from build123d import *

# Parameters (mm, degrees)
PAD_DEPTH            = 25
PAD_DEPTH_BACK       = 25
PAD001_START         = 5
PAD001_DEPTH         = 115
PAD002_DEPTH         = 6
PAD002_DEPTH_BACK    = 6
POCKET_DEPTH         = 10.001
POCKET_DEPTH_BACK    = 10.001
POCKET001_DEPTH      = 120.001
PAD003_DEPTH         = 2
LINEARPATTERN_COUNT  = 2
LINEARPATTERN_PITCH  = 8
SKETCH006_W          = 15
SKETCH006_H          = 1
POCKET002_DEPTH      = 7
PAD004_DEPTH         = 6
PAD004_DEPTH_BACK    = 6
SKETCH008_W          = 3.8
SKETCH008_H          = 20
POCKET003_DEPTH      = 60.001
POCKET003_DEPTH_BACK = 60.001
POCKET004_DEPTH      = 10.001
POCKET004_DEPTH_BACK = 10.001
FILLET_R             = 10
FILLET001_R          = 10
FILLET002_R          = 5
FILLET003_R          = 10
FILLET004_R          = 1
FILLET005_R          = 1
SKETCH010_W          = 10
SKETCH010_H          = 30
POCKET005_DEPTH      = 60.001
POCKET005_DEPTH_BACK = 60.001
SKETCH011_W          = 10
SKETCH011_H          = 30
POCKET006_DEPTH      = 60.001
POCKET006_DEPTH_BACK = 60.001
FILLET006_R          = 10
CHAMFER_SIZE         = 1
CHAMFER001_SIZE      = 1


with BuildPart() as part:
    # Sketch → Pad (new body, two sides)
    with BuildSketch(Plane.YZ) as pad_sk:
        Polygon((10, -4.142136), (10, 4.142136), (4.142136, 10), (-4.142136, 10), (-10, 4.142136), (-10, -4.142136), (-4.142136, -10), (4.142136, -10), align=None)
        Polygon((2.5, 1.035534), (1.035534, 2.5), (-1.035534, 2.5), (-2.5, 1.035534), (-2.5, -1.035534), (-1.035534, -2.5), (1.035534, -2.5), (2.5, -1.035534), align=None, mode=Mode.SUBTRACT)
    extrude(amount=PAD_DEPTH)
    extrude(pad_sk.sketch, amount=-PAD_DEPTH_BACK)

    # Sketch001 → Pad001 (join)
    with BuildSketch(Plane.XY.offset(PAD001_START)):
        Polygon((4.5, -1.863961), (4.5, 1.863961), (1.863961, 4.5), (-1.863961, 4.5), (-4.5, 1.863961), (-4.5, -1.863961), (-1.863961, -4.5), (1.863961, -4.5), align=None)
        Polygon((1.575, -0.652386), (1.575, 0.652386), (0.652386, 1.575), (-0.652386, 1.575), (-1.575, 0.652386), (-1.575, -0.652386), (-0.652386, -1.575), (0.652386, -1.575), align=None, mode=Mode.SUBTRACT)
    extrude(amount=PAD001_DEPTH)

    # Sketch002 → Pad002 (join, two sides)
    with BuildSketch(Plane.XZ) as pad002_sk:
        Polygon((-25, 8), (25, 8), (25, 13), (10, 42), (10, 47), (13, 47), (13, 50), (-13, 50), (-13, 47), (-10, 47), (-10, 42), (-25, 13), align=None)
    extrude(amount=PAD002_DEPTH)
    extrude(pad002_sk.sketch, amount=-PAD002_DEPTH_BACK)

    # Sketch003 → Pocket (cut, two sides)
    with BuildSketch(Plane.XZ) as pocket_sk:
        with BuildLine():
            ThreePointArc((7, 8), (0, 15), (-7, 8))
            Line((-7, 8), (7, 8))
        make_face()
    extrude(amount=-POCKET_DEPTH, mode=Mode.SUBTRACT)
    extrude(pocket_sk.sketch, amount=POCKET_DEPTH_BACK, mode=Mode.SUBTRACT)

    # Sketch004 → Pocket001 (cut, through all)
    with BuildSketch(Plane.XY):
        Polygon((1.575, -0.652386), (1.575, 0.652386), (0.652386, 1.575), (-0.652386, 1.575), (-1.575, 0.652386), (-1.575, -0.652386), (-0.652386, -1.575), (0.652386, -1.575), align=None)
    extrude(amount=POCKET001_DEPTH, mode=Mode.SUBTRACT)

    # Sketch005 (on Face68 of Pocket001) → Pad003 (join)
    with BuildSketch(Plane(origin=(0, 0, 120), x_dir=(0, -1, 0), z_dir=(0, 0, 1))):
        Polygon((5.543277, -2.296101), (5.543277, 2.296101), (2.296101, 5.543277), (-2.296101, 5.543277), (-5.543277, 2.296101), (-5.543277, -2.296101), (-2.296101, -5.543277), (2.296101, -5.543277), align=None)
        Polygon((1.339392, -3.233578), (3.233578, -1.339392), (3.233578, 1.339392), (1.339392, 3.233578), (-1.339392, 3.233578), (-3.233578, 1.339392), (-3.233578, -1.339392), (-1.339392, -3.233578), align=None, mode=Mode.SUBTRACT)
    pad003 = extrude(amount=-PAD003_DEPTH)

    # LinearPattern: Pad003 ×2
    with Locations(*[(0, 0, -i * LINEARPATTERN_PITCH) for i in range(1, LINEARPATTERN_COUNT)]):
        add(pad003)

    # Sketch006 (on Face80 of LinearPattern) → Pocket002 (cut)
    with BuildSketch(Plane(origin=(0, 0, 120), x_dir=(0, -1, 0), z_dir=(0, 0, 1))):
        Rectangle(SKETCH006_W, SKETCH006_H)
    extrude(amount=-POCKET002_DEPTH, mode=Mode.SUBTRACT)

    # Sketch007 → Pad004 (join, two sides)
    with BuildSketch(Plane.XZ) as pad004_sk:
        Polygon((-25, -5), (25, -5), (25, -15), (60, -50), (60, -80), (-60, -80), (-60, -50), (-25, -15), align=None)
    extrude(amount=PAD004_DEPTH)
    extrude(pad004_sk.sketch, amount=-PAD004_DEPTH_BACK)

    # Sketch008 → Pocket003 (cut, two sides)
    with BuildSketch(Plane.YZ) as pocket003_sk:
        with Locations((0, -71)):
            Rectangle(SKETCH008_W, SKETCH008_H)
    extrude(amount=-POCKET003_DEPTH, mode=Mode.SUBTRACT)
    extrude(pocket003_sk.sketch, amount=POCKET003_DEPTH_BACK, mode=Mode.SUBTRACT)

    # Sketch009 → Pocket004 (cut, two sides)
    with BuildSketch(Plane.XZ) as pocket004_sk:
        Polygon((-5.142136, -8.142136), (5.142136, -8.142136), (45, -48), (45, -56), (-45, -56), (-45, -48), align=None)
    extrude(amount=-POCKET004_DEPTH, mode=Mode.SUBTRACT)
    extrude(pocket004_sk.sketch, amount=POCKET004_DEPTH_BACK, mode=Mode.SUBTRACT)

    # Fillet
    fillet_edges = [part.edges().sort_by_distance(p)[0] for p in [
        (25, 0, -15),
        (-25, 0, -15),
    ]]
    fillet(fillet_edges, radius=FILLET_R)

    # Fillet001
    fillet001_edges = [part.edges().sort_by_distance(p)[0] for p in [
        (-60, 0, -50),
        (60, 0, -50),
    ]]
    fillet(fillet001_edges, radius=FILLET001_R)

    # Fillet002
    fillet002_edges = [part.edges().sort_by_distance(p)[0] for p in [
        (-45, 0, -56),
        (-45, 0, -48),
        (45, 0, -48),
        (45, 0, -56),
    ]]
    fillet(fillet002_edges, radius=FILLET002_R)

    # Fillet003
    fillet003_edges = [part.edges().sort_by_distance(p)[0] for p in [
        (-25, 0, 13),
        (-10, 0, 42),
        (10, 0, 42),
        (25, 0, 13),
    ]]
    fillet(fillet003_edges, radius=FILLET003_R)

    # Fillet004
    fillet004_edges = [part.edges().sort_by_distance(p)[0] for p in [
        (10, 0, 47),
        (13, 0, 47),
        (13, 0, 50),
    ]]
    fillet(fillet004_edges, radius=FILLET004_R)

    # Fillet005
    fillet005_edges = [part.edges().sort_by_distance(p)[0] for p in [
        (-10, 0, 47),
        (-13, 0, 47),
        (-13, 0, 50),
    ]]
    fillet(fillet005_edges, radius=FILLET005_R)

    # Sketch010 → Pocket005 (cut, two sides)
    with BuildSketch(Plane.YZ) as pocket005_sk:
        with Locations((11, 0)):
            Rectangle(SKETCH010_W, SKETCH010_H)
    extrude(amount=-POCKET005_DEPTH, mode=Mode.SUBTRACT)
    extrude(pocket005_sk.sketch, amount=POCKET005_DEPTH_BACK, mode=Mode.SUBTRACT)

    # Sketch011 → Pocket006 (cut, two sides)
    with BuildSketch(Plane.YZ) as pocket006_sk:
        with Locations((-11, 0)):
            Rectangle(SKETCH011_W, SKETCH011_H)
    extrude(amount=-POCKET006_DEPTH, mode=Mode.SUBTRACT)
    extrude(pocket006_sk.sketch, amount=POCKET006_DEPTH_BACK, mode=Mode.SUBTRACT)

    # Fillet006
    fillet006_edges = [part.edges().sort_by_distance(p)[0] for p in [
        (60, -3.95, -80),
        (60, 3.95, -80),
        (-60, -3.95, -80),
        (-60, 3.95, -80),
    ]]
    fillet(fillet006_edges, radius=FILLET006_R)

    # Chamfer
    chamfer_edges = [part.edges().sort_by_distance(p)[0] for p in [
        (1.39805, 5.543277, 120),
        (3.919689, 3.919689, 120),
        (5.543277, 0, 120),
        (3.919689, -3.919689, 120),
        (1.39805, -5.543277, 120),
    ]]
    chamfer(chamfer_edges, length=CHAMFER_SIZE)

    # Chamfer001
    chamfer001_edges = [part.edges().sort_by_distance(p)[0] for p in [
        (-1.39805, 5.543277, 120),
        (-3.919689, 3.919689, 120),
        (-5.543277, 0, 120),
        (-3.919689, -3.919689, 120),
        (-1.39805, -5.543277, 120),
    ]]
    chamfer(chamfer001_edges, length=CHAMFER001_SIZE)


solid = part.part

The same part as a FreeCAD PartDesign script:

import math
import FreeCAD as App
import Part
import Sketcher
from FreeCAD import Vector


def edges_at(feature, points):
    """Names of the edges that pass closest to the given points."""
    edges = feature.Shape.Edges
    near = lambda p: min(range(len(edges)), key=lambda i: edges[i].distToShape(Part.Vertex(*p))[0])
    return sorted({f"Edge{near(p) + 1}" for p in points})


def add_polygon(sketch, points):
    """Adds a closed chain of lines whose ends are joined by coincident constraints."""
    first, n = sketch.GeometryCount, len(points)
    for a, b in zip(points, points[1:] + points[:1]):
        sketch.addGeometry(Part.LineSegment(App.Vector(*a, 0), App.Vector(*b, 0)), False)
    for i in range(n):
        sketch.addConstraint(Sketcher.Constraint("Coincident", first + i, 2, first + (i + 1) % n, 1))

doc = App.newDocument("Part")
body = doc.addObject("PartDesign::Body", "Body")

sketch1 = body.newObject("Sketcher::SketchObject", "Sketch")
sketch1.AttachmentSupport = (doc.getObject("YZ_Plane"), [""])
sketch1.MapMode = "FlatFace"
add_polygon(sketch1, [(10, -4.142136), (10, 4.142136), (4.142136, 10), (-4.142136, 10), (-10, 4.142136), (-10, -4.142136), (-4.142136, -10), (4.142136, -10)])
add_polygon(sketch1, [(1.035534, 2.5), (2.5, 1.035534), (2.5, -1.035534), (1.035534, -2.5), (-1.035534, -2.5), (-2.5, -1.035534), (-2.5, 1.035534), (-1.035534, 2.5)])
sketch1.addConstraint(Sketcher.Constraint("Vertical", 0))
sketch1.addConstraint(Sketcher.Constraint("Horizontal", 2))
sketch1.addConstraint(Sketcher.Constraint("Vertical", 4))
sketch1.addConstraint(Sketcher.Constraint("Horizontal", 6))
sketch1.addConstraint(Sketcher.Constraint("Vertical", 9))
sketch1.addConstraint(Sketcher.Constraint("Horizontal", 11))
sketch1.addConstraint(Sketcher.Constraint("Vertical", 13))
sketch1.addConstraint(Sketcher.Constraint("Horizontal", 15))
sketch1.addConstraint(Sketcher.Constraint("Symmetric", 0, 2, 4, 2, -1, 1))
sketch1.addConstraint(Sketcher.Constraint("Symmetric", 1, 2, 5, 2, -1, 1))
sketch1.addConstraint(Sketcher.Constraint("Symmetric", 8, 2, 12, 2, -1, 1))
sketch1.addConstraint(Sketcher.Constraint("Symmetric", 10, 2, 14, 2, -1, 1))
sketch1.addConstraint(Sketcher.Constraint("Perpendicular", 1, 3))
sketch1.addConstraint(Sketcher.Constraint("Perpendicular", 5, 7))
sketch1.addConstraint(Sketcher.Constraint("Perpendicular", 7, 8))
sketch1.addConstraint(Sketcher.Constraint("Perpendicular", 8, 10))
sketch1.addConstraint(Sketcher.Constraint("Perpendicular", 10, 12))
sketch1.addConstraint(Sketcher.Constraint("Perpendicular", 12, 14))
sketch1.addConstraint(Sketcher.Constraint("Horizontal", 0, 2, 3, 2))
sketch1.addConstraint(Sketcher.Constraint("Horizontal", 4, 2, 7, 2))
sketch1.addConstraint(Sketcher.Constraint("Horizontal", 9, 2, 12, 2))
sketch1.addConstraint(Sketcher.Constraint("Vertical", 2, 2, 5, 2))
sketch1.addConstraint(Sketcher.Constraint("Equal", 6, 0))
sketch1.addConstraint(Sketcher.Constraint("Equal", 15, 9))
sketch1.addConstraint(Sketcher.Constraint("DistanceX", -1, 1, 0, 2, 10.0))
sketch1.addConstraint(Sketcher.Constraint("DistanceX", 12, 2, 9, 2, 5.0))
sketch1.addConstraint(Sketcher.Constraint("DistanceY", 8, 2, 0, 2, 3.106602))
sketch1.addConstraint(Sketcher.Constraint("Distance", 1, 8.284271))
pad1 = body.newObject("PartDesign::Pad", "Pad")
pad1.Profile = sketch1
pad1.Type = "TwoLengths"
pad1.Length = 25
pad1.Length2 = 25

sketch2 = body.newObject("Sketcher::SketchObject", "Sketch001")
sketch2.AttachmentSupport = (doc.getObject("XY_Plane"), [""])
sketch2.MapMode = "FlatFace"
sketch2.AttachmentOffset = App.Placement(Vector(0, 0, 5), App.Rotation())
add_polygon(sketch2, [(4.5, -1.863961), (4.5, 1.863961), (1.863961, 4.5), (-1.863961, 4.5), (-4.5, 1.863961), (-4.5, -1.863961), (-1.863961, -4.5), (1.863961, -4.5)])
add_polygon(sketch2, [(1.575, 0.652386), (1.575, -0.652386), (0.652386, -1.575), (-0.652386, -1.575), (-1.575, -0.652386), (-1.575, 0.652386), (-0.652386, 1.575), (0.652386, 1.575)])
sketch2.addConstraint(Sketcher.Constraint("Vertical", 0))
sketch2.addConstraint(Sketcher.Constraint("Horizontal", 2))
sketch2.addConstraint(Sketcher.Constraint("Vertical", 4))
sketch2.addConstraint(Sketcher.Constraint("Horizontal", 6))
sketch2.addConstraint(Sketcher.Constraint("Vertical", 8))
sketch2.addConstraint(Sketcher.Constraint("Horizontal", 10))
sketch2.addConstraint(Sketcher.Constraint("Vertical", 12))
sketch2.addConstraint(Sketcher.Constraint("Horizontal", 14))
sketch2.addConstraint(Sketcher.Constraint("Symmetric", 0, 2, 4, 2, -1, 1))
sketch2.addConstraint(Sketcher.Constraint("Symmetric", 1, 2, 5, 2, -1, 1))
sketch2.addConstraint(Sketcher.Constraint("Symmetric", 8, 2, 12, 2, -1, 1))
sketch2.addConstraint(Sketcher.Constraint("Symmetric", 9, 2, 13, 2, -1, 1))
sketch2.addConstraint(Sketcher.Constraint("Perpendicular", 1, 3))
sketch2.addConstraint(Sketcher.Constraint("Perpendicular", 5, 7))
sketch2.addConstraint(Sketcher.Constraint("Parallel", 7, 9))
sketch2.addConstraint(Sketcher.Constraint("Perpendicular", 9, 11))
sketch2.addConstraint(Sketcher.Constraint("Perpendicular", 13, 15))
sketch2.addConstraint(Sketcher.Constraint("Horizontal", 0, 2, 3, 2))
sketch2.addConstraint(Sketcher.Constraint("Horizontal", 4, 2, 7, 2))
sketch2.addConstraint(Sketcher.Constraint("Horizontal", 8, 2, 11, 2))
sketch2.addConstraint(Sketcher.Constraint("Horizontal", 12, 2, 15, 2))
sketch2.addConstraint(Sketcher.Constraint("Vertical", 2, 2, 5, 2))
sketch2.addConstraint(Sketcher.Constraint("Equal", 6, 0))
sketch2.addConstraint(Sketcher.Constraint("Equal", 14, 8))
sketch2.addConstraint(Sketcher.Constraint("DistanceX", 3, 2, 0, 2, 9.0))
sketch2.addConstraint(Sketcher.Constraint("DistanceX", 11, 2, 8, 2, 3.15))
sketch2.addConstraint(Sketcher.Constraint("DistanceX", 2, 2, 2, 1, 3.727922))
sketch2.addConstraint(Sketcher.Constraint("DistanceX", 10, 2, 10, 1, 1.304772))
pad2 = body.newObject("PartDesign::Pad", "Pad001")
pad2.Profile = sketch2
pad2.Length = 115

sketch3 = body.newObject("Sketcher::SketchObject", "Sketch002")
sketch3.AttachmentSupport = (doc.getObject("XZ_Plane"), [""])
sketch3.MapMode = "FlatFace"
add_polygon(sketch3, [(-25, 8), (25, 8), (25, 13), (10, 42), (10, 47), (13, 47), (13, 50), (-13, 50), (-13, 47), (-10, 47), (-10, 42), (-25, 13)])
sketch3.addConstraint(Sketcher.Constraint("Horizontal", 0))
sketch3.addConstraint(Sketcher.Constraint("Vertical", 1))
sketch3.addConstraint(Sketcher.Constraint("Vertical", 3))
sketch3.addConstraint(Sketcher.Constraint("Horizontal", 4))
sketch3.addConstraint(Sketcher.Constraint("Vertical", 5))
sketch3.addConstraint(Sketcher.Constraint("Horizontal", 6))
sketch3.addConstraint(Sketcher.Constraint("Vertical", 7))
sketch3.addConstraint(Sketcher.Constraint("Horizontal", 8))
sketch3.addConstraint(Sketcher.Constraint("Vertical", 9))
sketch3.addConstraint(Sketcher.Constraint("Vertical", 11))
sketch3.addConstraint(Sketcher.Constraint("Symmetric", 4, 2, 7, 2, -2))
sketch3.addConstraint(Sketcher.Constraint("Symmetric", 2, 2, 9, 2, -2))
sketch3.addConstraint(Sketcher.Constraint("Symmetric", 1, 2, 10, 2, -2))
sketch3.addConstraint(Sketcher.Constraint("Equal", 1, 3))
sketch3.addConstraint(Sketcher.Constraint("Equal", 8, 5))
sketch3.addConstraint(Sketcher.Constraint("DistanceX", 0, 1, 0, 2, 50.0))
sketch3.addConstraint(Sketcher.Constraint("DistanceX", 4, 1, 4, 2, 3.0))
sketch3.addConstraint(Sketcher.Constraint("DistanceX", 6, 2, 6, 1, 26.0))
sketch3.addConstraint(Sketcher.Constraint("DistanceY", 1, 1, 1, 2, 5.0))
sketch3.addConstraint(Sketcher.Constraint("DistanceY", -1, 1, 0, 2, 8.0))
sketch3.addConstraint(Sketcher.Constraint("DistanceY", -1, 1, 2, 2, 42.0))
pad3 = body.newObject("PartDesign::Pad", "Pad002")
pad3.Profile = sketch3
pad3.Type = "TwoLengths"
pad3.Length = 6
pad3.Length2 = 6

sketch4 = body.newObject("Sketcher::SketchObject", "Sketch003")
sketch4.AttachmentSupport = (doc.getObject("XZ_Plane"), [""])
sketch4.MapMode = "FlatFace"
sketch4.addGeometry(Part.ArcOfCircle(Part.Circle(Vector(0, 8, 0), Vector(0, 0, 1), 7), math.radians(0), math.radians(180)), False)
sketch4.addGeometry(Part.LineSegment(Vector(-7, 8, 0), Vector(7, 8, 0)), False)
sketch4.addConstraint(Sketcher.Constraint("Coincident", 0, 1, 1, 2))
sketch4.addConstraint(Sketcher.Constraint("Coincident", 1, 1, 0, 2))
sketch4.addConstraint(Sketcher.Constraint("Horizontal", 1))
sketch4.addConstraint(Sketcher.Constraint("PointOnObject", 0, 3, -2))
sketch4.addConstraint(Sketcher.Constraint("Radius", 0, 7.0))
sketch4.addConstraint(Sketcher.Constraint("DistanceY", -1, 1, 0, 3, 8.0))
sketch4.addConstraint(Sketcher.Constraint("DistanceY", -1, 1, 0, 1, 8.0))
pocket1 = body.newObject("PartDesign::Pocket", "Pocket")
pocket1.Profile = sketch4
pocket1.Type = "ThroughAll"
pocket1.Midplane = True

sketch5 = body.newObject("Sketcher::SketchObject", "Sketch004")
sketch5.AttachmentSupport = (doc.getObject("XY_Plane"), [""])
sketch5.MapMode = "FlatFace"
add_polygon(sketch5, [(1.575, -0.652386), (1.575, 0.652386), (0.652386, 1.575), (-0.652386, 1.575), (-1.575, 0.652386), (-1.575, -0.652386), (-0.652386, -1.575), (0.652386, -1.575)])
sketch5.addConstraint(Sketcher.Constraint("Vertical", 0))
sketch5.addConstraint(Sketcher.Constraint("Horizontal", 2))
sketch5.addConstraint(Sketcher.Constraint("Vertical", 4))
sketch5.addConstraint(Sketcher.Constraint("Horizontal", 6))
sketch5.addConstraint(Sketcher.Constraint("Symmetric", 0, 2, 4, 2, -1, 1))
sketch5.addConstraint(Sketcher.Constraint("Symmetric", 1, 2, 5, 2, -1, 1))
sketch5.addConstraint(Sketcher.Constraint("Perpendicular", 1, 3))
sketch5.addConstraint(Sketcher.Constraint("Perpendicular", 5, 7))
sketch5.addConstraint(Sketcher.Constraint("Horizontal", 0, 2, 3, 2))
sketch5.addConstraint(Sketcher.Constraint("Horizontal", 4, 2, 7, 2))
sketch5.addConstraint(Sketcher.Constraint("Vertical", 2, 2, 5, 2))
sketch5.addConstraint(Sketcher.Constraint("Equal", 6, 0))
sketch5.addConstraint(Sketcher.Constraint("DistanceX", 3, 2, 0, 2, 3.15))
sketch5.addConstraint(Sketcher.Constraint("DistanceX", 2, 2, 2, 1, 1.304772))
pocket2 = body.newObject("PartDesign::Pocket", "Pocket001")
pocket2.Profile = sketch5
pocket2.Type = "ThroughAll"
pocket2.Reversed = True

sketch6 = body.newObject("Sketcher::SketchObject", "Sketch005")
sketch6.AttachmentSupport = (doc.getObject("XY_Plane"), [""])
sketch6.MapMode = "FlatFace"
sketch6.AttachmentOffset = App.Placement(Vector(0, 0, 120), App.Rotation())
add_polygon(sketch6, [(-2.296101, -5.543277), (2.296101, -5.543277), (5.543277, -2.296101), (5.543277, 2.296101), (2.296101, 5.543277), (-2.296101, 5.543277), (-5.543277, 2.296101), (-5.543277, -2.296101)])
add_polygon(sketch6, [(-1.339392, -3.233578), (-3.233578, -1.339392), (-3.233578, 1.339392), (-1.339392, 3.233578), (1.339392, 3.233578), (3.233578, 1.339392), (3.233578, -1.339392), (1.339392, -3.233578)])
sketch6.addConstraint(Sketcher.Constraint("Horizontal", 0))
sketch6.addConstraint(Sketcher.Constraint("Vertical", 2))
sketch6.addConstraint(Sketcher.Constraint("Horizontal", 4))
sketch6.addConstraint(Sketcher.Constraint("Vertical", 6))
sketch6.addConstraint(Sketcher.Constraint("Vertical", 9))
sketch6.addConstraint(Sketcher.Constraint("Horizontal", 11))
sketch6.addConstraint(Sketcher.Constraint("Vertical", 13))
sketch6.addConstraint(Sketcher.Constraint("Horizontal", 15))
sketch6.addConstraint(Sketcher.Constraint("Symmetric", 0, 2, 4, 2, -1, 1))
sketch6.addConstraint(Sketcher.Constraint("Symmetric", 1, 2, 5, 2, -1, 1))
sketch6.addConstraint(Sketcher.Constraint("Symmetric", 8, 2, 12, 2, -1, 1))
sketch6.addConstraint(Sketcher.Constraint("Symmetric", 10, 2, 14, 2, -1, 1))
sketch6.addConstraint(Sketcher.Constraint("Perpendicular", 1, 3))
sketch6.addConstraint(Sketcher.Constraint("Perpendicular", 5, 7))
sketch6.addConstraint(Sketcher.Constraint("Parallel", 7, 8))
sketch6.addConstraint(Sketcher.Constraint("Perpendicular", 8, 10))
sketch6.addConstraint(Sketcher.Constraint("Perpendicular", 10, 12))
sketch6.addConstraint(Sketcher.Constraint("Perpendicular", 12, 14))
sketch6.addConstraint(Sketcher.Constraint("Horizontal", 2, 2, 5, 2))
sketch6.addConstraint(Sketcher.Constraint("Horizontal", 1, 2, 6, 2))
sketch6.addConstraint(Sketcher.Constraint("Horizontal", 9, 2, 12, 2))
sketch6.addConstraint(Sketcher.Constraint("Vertical", 0, 2, 3, 2))
sketch6.addConstraint(Sketcher.Constraint("Equal", 4, 2))
sketch6.addConstraint(Sketcher.Constraint("Equal", 15, 9))
sketch6.addConstraint(Sketcher.Constraint("Distance", 1, 4.5922))
sketch6.addConstraint(Sketcher.Constraint("DistanceX", -1, 1, 0, 2, 2.296101))
sketch6.addConstraint(Sketcher.Constraint("DistanceX", 6, 2, 8, 2, 2.309699))
sketch6.addConstraint(Sketcher.Constraint("DistanceX", 11, 1, 11, 2, 2.678784))
pad4 = body.newObject("PartDesign::Pad", "Pad003")
pad4.Profile = sketch6
pad4.Length = 2
pad4.Reversed = True
doc.recompute()

linearpattern = body.newObject("PartDesign::LinearPattern", "LinearPattern")
linearpattern.Originals = [pad4]
linearpattern.Direction = (doc.getObject("Z_Axis"), [""])
linearpattern.Mode = "offset"
linearpattern.Offset = 8
linearpattern.Occurrences = 2
linearpattern.Reversed = True
body.Tip = linearpattern

sketch7 = body.newObject("Sketcher::SketchObject", "Sketch006")
sketch7.AttachmentSupport = (doc.getObject("XY_Plane"), [""])
sketch7.MapMode = "FlatFace"
sketch7.AttachmentOffset = App.Placement(Vector(0, 0, 120), App.Rotation())
add_polygon(sketch7, [(0.5, 7.5), (-0.5, 7.5), (-0.5, -7.5), (0.5, -7.5)])
sketch7.addConstraint(Sketcher.Constraint("Horizontal", 0))
sketch7.addConstraint(Sketcher.Constraint("Vertical", 1))
sketch7.addConstraint(Sketcher.Constraint("Horizontal", 2))
sketch7.addConstraint(Sketcher.Constraint("Vertical", 3))
sketch7.addConstraint(Sketcher.Constraint("Symmetric", 0, 2, 2, 2, -1, 1))
sketch7.addConstraint(Sketcher.Constraint("DistanceX", 0, 2, 0, 1, 1.0))
sketch7.addConstraint(Sketcher.Constraint("DistanceY", 1, 2, 1, 1, 15.0))
pocket3 = body.newObject("PartDesign::Pocket", "Pocket002")
pocket3.Profile = sketch7
pocket3.Length = 7

sketch8 = body.newObject("Sketcher::SketchObject", "Sketch007")
sketch8.AttachmentSupport = (doc.getObject("XZ_Plane"), [""])
sketch8.MapMode = "FlatFace"
add_polygon(sketch8, [(25, -5), (-25, -5), (-25, -15), (-60, -50), (-60, -80), (60, -80), (60, -50), (25, -15)])
sketch8.addConstraint(Sketcher.Constraint("Horizontal", 0))
sketch8.addConstraint(Sketcher.Constraint("Vertical", 1))
sketch8.addConstraint(Sketcher.Constraint("Vertical", 3))
sketch8.addConstraint(Sketcher.Constraint("Horizontal", 4))
sketch8.addConstraint(Sketcher.Constraint("Vertical", 5))
sketch8.addConstraint(Sketcher.Constraint("Vertical", 7))
sketch8.addConstraint(Sketcher.Constraint("Symmetric", 2, 2, 5, 2, -2))
sketch8.addConstraint(Sketcher.Constraint("Symmetric", 1, 2, 6, 2, -2))
sketch8.addConstraint(Sketcher.Constraint("Perpendicular", 2, 6))
sketch8.addConstraint(Sketcher.Constraint("DistanceX", 0, 2, 0, 1, 50.0))
sketch8.addConstraint(Sketcher.Constraint("DistanceX", 4, 1, 4, 2, 120.0))
sketch8.addConstraint(Sketcher.Constraint("DistanceY", 1, 2, 1, 1, 10.0))
sketch8.addConstraint(Sketcher.Constraint("DistanceY", 3, 2, 3, 1, 30.0))
sketch8.addConstraint(Sketcher.Constraint("DistanceY", 0, 2, -1, 1, 5.0))
pad5 = body.newObject("PartDesign::Pad", "Pad004")
pad5.Profile = sketch8
pad5.Type = "TwoLengths"
pad5.Length = 6
pad5.Length2 = 6

sketch9 = body.newObject("Sketcher::SketchObject", "Sketch008")
sketch9.AttachmentSupport = (doc.getObject("YZ_Plane"), [""])
sketch9.MapMode = "FlatFace"
add_polygon(sketch9, [(-1.9, -61), (-1.9, -81), (1.9, -81), (1.9, -61)])
sketch9.addConstraint(Sketcher.Constraint("Vertical", 0))
sketch9.addConstraint(Sketcher.Constraint("Horizontal", 1))
sketch9.addConstraint(Sketcher.Constraint("Vertical", 2))
sketch9.addConstraint(Sketcher.Constraint("Horizontal", 3))
sketch9.addConstraint(Sketcher.Constraint("DistanceY", 0, 2, 0, 1, 20.0))
sketch9.addConstraint(Sketcher.Constraint("DistanceX", 1, 1, 1, 2, 3.8))
sketch9.addConstraint(Sketcher.Constraint("DistanceY", 0, 2, -1, 1, 81.0))
sketch9.addConstraint(Sketcher.Constraint("DistanceX", 0, 2, -1, 1, 1.9))
pocket4 = body.newObject("PartDesign::Pocket", "Pocket003")
pocket4.Profile = sketch9
pocket4.Type = "ThroughAll"
pocket4.Midplane = True

sketch10 = body.newObject("Sketcher::SketchObject", "Sketch009")
sketch10.AttachmentSupport = (doc.getObject("XZ_Plane"), [""])
sketch10.MapMode = "FlatFace"
add_polygon(sketch10, [(5.142136, -8.142136), (-5.142136, -8.142136), (-45, -48), (-45, -56), (45, -56), (45, -48)])
sketch10.addConstraint(Sketcher.Constraint("Horizontal", 0))
sketch10.addConstraint(Sketcher.Constraint("Vertical", 2))
sketch10.addConstraint(Sketcher.Constraint("Horizontal", 3))
sketch10.addConstraint(Sketcher.Constraint("Vertical", 4))
sketch10.addConstraint(Sketcher.Constraint("Symmetric", 1, 2, 4, 2, -2))
sketch10.addConstraint(Sketcher.Constraint("Perpendicular", 1, 5))
sketch10.addConstraint(Sketcher.Constraint("Equal", 1, 5))
sketch10.addConstraint(Sketcher.Constraint("DistanceX", 3, 1, 3, 2, 90.0))
sketch10.addConstraint(Sketcher.Constraint("DistanceY", 2, 2, 2, 1, 8.0))
sketch10.addConstraint(Sketcher.Constraint("DistanceY", 1, 2, -1, 1, 48.0))
sketch10.addConstraint(Sketcher.Constraint("Distance", 1, 56.367532))
pocket5 = body.newObject("PartDesign::Pocket", "Pocket004")
pocket5.Profile = sketch10
pocket5.Type = "ThroughAll"
pocket5.Midplane = True
doc.recompute()

fillet = body.newObject("PartDesign::Fillet", "Fillet")
fillet.Base = (pocket5, edges_at(pocket5, [(25, 0, -15), (-25, 0, -15)]))
fillet.Radius = 10
doc.recompute()

fillet2 = body.newObject("PartDesign::Fillet", "Fillet001")
fillet2.Base = (fillet, edges_at(fillet, [(-60, 0, -50), (60, 0, -50)]))
fillet2.Radius = 10
doc.recompute()

fillet3 = body.newObject("PartDesign::Fillet", "Fillet002")
fillet3.Base = (fillet2, edges_at(fillet2, [
    (-45, 0, -56),
    (-45, 0, -48),
    (45, 0, -48),
    (45, 0, -56),
]))
fillet3.Radius = 5
doc.recompute()

fillet4 = body.newObject("PartDesign::Fillet", "Fillet003")
fillet4.Base = (fillet3, edges_at(fillet3, [
    (-25, 0, 13),
    (-10, 0, 42),
    (10, 0, 42),
    (25, 0, 13),
]))
fillet4.Radius = 10
doc.recompute()

fillet5 = body.newObject("PartDesign::Fillet", "Fillet004")
fillet5.Base = (fillet4, edges_at(fillet4, [(10, 0, 47), (13, 0, 47), (13, 0, 50)]))
fillet5.Radius = 1
doc.recompute()

fillet6 = body.newObject("PartDesign::Fillet", "Fillet005")
fillet6.Base = (fillet5, edges_at(fillet5, [(-10, 0, 47), (-13, 0, 47), (-13, 0, 50)]))
fillet6.Radius = 1

sketch11 = body.newObject("Sketcher::SketchObject", "Sketch010")
sketch11.AttachmentSupport = (doc.getObject("YZ_Plane"), [""])
sketch11.MapMode = "FlatFace"
add_polygon(sketch11, [(6, 15), (6, -15), (16, -15), (16, 15)])
sketch11.addConstraint(Sketcher.Constraint("Vertical", 0))
sketch11.addConstraint(Sketcher.Constraint("Horizontal", 1))
sketch11.addConstraint(Sketcher.Constraint("Vertical", 2))
sketch11.addConstraint(Sketcher.Constraint("Horizontal", 3))
sketch11.addConstraint(Sketcher.Constraint("DistanceX", 1, 1, 1, 2, 10.0))
sketch11.addConstraint(Sketcher.Constraint("DistanceY", 0, 2, 0, 1, 30.0))
sketch11.addConstraint(Sketcher.Constraint("DistanceX", -1, 1, 0, 2, 6.0))
sketch11.addConstraint(Sketcher.Constraint("DistanceY", 0, 2, -1, 1, 15.0))
pocket6 = body.newObject("PartDesign::Pocket", "Pocket005")
pocket6.Profile = sketch11
pocket6.Type = "ThroughAll"
pocket6.Midplane = True

sketch12 = body.newObject("Sketcher::SketchObject", "Sketch011")
sketch12.AttachmentSupport = (doc.getObject("YZ_Plane"), [""])
sketch12.MapMode = "FlatFace"
add_polygon(sketch12, [(-16, 15), (-16, -15), (-6, -15), (-6, 15)])
sketch12.addConstraint(Sketcher.Constraint("Vertical", 0))
sketch12.addConstraint(Sketcher.Constraint("Horizontal", 1))
sketch12.addConstraint(Sketcher.Constraint("Vertical", 2))
sketch12.addConstraint(Sketcher.Constraint("Horizontal", 3))
sketch12.addConstraint(Sketcher.Constraint("DistanceX", 1, 1, 1, 2, 10.0))
sketch12.addConstraint(Sketcher.Constraint("DistanceY", 0, 2, 0, 1, 30.0))
sketch12.addConstraint(Sketcher.Constraint("DistanceX", 0, 2, -1, 1, 16.0))
sketch12.addConstraint(Sketcher.Constraint("DistanceY", 0, 2, -1, 1, 15.0))
pocket7 = body.newObject("PartDesign::Pocket", "Pocket006")
pocket7.Profile = sketch12
pocket7.Type = "ThroughAll"
pocket7.Midplane = True
doc.recompute()

fillet7 = body.newObject("PartDesign::Fillet", "Fillet006")
fillet7.Base = (pocket7, edges_at(pocket7, [
    (60, -3.95, -80),
    (60, 3.95, -80),
    (-60, -3.95, -80),
    (-60, 3.95, -80),
]))
fillet7.Radius = 10
doc.recompute()

chamfer = body.newObject("PartDesign::Chamfer", "Chamfer")
chamfer.Base = (fillet7, edges_at(fillet7, [
    (1.398, 5.543, 120),
    (3.92, 3.92, 120),
    (5.543, 0, 120),
    (3.92, -3.92, 120),
    (1.398, -5.543, 120),
]))
chamfer.Size = 1
doc.recompute()

chamfer2 = body.newObject("PartDesign::Chamfer", "Chamfer001")
chamfer2.Base = (chamfer, edges_at(chamfer, [
    (-1.398, 5.543, 120),
    (-3.92, 3.92, 120),
    (-5.543, 0, 120),
    (-3.92, -3.92, 120),
    (-1.398, -5.543, 120),
]))
chamfer2.Size = 1

doc.recompute()
